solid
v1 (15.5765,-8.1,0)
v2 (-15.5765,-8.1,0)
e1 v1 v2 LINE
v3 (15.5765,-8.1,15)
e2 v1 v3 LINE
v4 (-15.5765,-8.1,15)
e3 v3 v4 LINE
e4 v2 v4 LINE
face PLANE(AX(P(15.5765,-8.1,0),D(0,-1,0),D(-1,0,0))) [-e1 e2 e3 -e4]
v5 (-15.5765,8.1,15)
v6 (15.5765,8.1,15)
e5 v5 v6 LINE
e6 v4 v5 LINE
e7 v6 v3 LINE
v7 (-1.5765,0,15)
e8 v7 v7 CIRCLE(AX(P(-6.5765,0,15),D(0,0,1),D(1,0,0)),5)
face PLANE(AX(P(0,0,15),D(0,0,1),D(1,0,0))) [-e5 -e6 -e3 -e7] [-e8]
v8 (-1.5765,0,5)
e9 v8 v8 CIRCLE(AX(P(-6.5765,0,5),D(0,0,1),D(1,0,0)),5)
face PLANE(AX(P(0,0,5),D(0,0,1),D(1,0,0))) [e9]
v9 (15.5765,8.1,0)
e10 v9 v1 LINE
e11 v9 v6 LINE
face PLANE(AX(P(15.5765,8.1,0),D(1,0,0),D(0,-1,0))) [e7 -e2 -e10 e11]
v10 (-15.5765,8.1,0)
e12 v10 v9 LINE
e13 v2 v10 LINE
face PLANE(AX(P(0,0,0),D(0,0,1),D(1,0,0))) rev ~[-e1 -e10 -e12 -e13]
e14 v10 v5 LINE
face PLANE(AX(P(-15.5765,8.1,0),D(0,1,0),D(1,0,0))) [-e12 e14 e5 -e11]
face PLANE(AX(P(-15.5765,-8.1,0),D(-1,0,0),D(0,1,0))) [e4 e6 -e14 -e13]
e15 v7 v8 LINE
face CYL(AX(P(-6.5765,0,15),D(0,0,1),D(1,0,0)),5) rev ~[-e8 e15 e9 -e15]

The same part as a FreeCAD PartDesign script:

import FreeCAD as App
import Part
import Sketcher
from FreeCAD import Vector

doc = App.newDocument("Part")
body = doc.addObject("PartDesign::Body", "Body")

sketch1 = body.newObject("Sketcher::SketchObject", "Sketch")
sketch1.AttachmentSupport = (doc.getObject("XY_Plane"), [""])
sketch1.MapMode = "FlatFace"
sketch1.addGeometry([
    Part.LineSegment(Vector(16, 8, 0), Vector(-16, 8, 0)),
    Part.LineSegment(Vector(-16, 8, 0), Vector(-16, -8, 0)),
    Part.LineSegment(Vector(-16, -8, 0), Vector(16, -8, 0)),
    Part.LineSegment(Vector(16, -8, 0), Vector(16, 8, 0)),
], False)
sketch1.addConstraint([
    Sketcher.Constraint("Coincident", 0, 2, 1, 1),
    Sketcher.Constraint("Coincident", 1, 2, 2, 1),
    Sketcher.Constraint("Coincident", 2, 2, 3, 1),
    Sketcher.Constraint("Coincident", 3, 2, 0, 1),
    Sketcher.Constraint("Horizontal", 0),
    Sketcher.Constraint("Vertical", 1),
    Sketcher.Constraint("Horizontal", 2),
    Sketcher.Constraint("Vertical", 3),
    Sketcher.Constraint("Symmetric", 0, 2, 2, 2, -1, 1),
    Sketcher.Constraint("DistanceY", 1, 2, 1, 1, 16.2),
    Sketcher.Constraint("DistanceX", 0, 2, 0, 1, 31.153),
])
pad1 = body.newObject("PartDesign::Pad", "Pad")
pad1.Profile = sketch1
pad1.Length = 15

sketch2 = body.newObject("Sketcher::SketchObject", "Sketch001")
sketch2.AttachmentSupport = (doc.getObject("XY_Plane"), [""])
sketch2.MapMode = "FlatFace"
sketch2.AttachmentOffset = App.Placement(Vector(0, 0, 15), App.Rotation())
sketch2.addGeometry(Part.Circle(Vector(-7, 0, 0), Vector(0, 0, 1), 5), False)
sketch2.addConstraint([
    Sketcher.Constraint("PointOnObject", 0, 3, -1),
    Sketcher.Constraint("Diameter", 0, 10.0),
    Sketcher.Constraint("DistanceX", 0, 3, -1, 1, 6.5765),
])
pocket1 = body.newObject("PartDesign::Pocket", "Pocket")
pocket1.Profile = sketch2
pocket1.Length = 10

doc.recompute()
